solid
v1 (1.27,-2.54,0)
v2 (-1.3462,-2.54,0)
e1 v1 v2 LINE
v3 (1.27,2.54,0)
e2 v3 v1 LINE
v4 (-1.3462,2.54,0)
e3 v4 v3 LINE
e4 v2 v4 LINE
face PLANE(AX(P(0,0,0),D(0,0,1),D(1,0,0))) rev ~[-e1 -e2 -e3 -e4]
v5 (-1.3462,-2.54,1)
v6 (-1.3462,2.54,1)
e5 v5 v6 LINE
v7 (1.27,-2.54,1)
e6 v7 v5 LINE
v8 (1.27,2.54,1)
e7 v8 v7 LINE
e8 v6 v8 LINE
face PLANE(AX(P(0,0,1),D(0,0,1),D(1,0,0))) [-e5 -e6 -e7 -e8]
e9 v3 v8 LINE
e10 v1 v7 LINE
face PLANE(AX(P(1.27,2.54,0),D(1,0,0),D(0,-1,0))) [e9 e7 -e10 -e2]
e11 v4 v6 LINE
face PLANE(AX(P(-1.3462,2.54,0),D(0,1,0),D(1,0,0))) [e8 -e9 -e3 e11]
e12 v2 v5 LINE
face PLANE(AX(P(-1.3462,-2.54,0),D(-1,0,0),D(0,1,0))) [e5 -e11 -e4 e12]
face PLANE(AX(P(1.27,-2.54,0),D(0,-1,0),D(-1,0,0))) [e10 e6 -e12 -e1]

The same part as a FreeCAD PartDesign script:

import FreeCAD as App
import Part
import Sketcher
from FreeCAD import Vector
Q = App.Units.Quantity


def add_polygon(sketch, points):
    """Adds a closed chain of lines whose ends are joined by coincident constraints."""
    first, n = sketch.GeometryCount, len(points)
    for a, b in zip(points, points[1:] + points[:1]):
        sketch.addGeometry(Part.LineSegment(App.Vector(*a, 0), App.Vector(*b, 0)), False)
    for i in range(n):
        sketch.addConstraint(Sketcher.Constraint("Coincident", first + i, 2, first + (i + 1) % n, 1))

doc = App.newDocument("Part")
body = doc.addObject("PartDesign::Body", "Body")

sketch1 = doc.addObject("Sketcher::SketchObject", "Sketch")
body.addObject(sketch1)
sketch1.AttachmentSupport = (doc.XY_Plane, [""])
sketch1.MapMode = "FlatFace"
add_polygon(sketch1, [(1.3, 2.5), (-1.3, 2.5), (-1.3, -2.5), (1.3, -2.5)])
sketch1.addConstraint(Sketcher.Constraint("Horizontal", 0))
sketch1.addConstraint(Sketcher.Constraint("Vertical", 1))
sketch1.addConstraint(Sketcher.Constraint("Horizontal", 2))
sketch1.addConstraint(Sketcher.Constraint("Vertical", 3))
sketch1.addConstraint(Sketcher.Constraint("DistanceY", 1, 2, 1, 1, Q("0.2 in")))
sketch1.addConstraint(Sketcher.Constraint("DistanceY", -1, 1, 0, 2, Q("0.1 in")))
sketch1.addConstraint(Sketcher.Constraint("DistanceX", 0, 2, 0, 1, Q("0.103 in")))
sketch1.addConstraint(Sketcher.Constraint("DistanceX", -1, 1, 2, 2, Q("0.05 in")))
pad1 = doc.addObject("PartDesign::Pad", "Pad")
body.addObject(pad1)
pad1.Profile = sketch1
pad1.Length = 1

doc.recompute()
